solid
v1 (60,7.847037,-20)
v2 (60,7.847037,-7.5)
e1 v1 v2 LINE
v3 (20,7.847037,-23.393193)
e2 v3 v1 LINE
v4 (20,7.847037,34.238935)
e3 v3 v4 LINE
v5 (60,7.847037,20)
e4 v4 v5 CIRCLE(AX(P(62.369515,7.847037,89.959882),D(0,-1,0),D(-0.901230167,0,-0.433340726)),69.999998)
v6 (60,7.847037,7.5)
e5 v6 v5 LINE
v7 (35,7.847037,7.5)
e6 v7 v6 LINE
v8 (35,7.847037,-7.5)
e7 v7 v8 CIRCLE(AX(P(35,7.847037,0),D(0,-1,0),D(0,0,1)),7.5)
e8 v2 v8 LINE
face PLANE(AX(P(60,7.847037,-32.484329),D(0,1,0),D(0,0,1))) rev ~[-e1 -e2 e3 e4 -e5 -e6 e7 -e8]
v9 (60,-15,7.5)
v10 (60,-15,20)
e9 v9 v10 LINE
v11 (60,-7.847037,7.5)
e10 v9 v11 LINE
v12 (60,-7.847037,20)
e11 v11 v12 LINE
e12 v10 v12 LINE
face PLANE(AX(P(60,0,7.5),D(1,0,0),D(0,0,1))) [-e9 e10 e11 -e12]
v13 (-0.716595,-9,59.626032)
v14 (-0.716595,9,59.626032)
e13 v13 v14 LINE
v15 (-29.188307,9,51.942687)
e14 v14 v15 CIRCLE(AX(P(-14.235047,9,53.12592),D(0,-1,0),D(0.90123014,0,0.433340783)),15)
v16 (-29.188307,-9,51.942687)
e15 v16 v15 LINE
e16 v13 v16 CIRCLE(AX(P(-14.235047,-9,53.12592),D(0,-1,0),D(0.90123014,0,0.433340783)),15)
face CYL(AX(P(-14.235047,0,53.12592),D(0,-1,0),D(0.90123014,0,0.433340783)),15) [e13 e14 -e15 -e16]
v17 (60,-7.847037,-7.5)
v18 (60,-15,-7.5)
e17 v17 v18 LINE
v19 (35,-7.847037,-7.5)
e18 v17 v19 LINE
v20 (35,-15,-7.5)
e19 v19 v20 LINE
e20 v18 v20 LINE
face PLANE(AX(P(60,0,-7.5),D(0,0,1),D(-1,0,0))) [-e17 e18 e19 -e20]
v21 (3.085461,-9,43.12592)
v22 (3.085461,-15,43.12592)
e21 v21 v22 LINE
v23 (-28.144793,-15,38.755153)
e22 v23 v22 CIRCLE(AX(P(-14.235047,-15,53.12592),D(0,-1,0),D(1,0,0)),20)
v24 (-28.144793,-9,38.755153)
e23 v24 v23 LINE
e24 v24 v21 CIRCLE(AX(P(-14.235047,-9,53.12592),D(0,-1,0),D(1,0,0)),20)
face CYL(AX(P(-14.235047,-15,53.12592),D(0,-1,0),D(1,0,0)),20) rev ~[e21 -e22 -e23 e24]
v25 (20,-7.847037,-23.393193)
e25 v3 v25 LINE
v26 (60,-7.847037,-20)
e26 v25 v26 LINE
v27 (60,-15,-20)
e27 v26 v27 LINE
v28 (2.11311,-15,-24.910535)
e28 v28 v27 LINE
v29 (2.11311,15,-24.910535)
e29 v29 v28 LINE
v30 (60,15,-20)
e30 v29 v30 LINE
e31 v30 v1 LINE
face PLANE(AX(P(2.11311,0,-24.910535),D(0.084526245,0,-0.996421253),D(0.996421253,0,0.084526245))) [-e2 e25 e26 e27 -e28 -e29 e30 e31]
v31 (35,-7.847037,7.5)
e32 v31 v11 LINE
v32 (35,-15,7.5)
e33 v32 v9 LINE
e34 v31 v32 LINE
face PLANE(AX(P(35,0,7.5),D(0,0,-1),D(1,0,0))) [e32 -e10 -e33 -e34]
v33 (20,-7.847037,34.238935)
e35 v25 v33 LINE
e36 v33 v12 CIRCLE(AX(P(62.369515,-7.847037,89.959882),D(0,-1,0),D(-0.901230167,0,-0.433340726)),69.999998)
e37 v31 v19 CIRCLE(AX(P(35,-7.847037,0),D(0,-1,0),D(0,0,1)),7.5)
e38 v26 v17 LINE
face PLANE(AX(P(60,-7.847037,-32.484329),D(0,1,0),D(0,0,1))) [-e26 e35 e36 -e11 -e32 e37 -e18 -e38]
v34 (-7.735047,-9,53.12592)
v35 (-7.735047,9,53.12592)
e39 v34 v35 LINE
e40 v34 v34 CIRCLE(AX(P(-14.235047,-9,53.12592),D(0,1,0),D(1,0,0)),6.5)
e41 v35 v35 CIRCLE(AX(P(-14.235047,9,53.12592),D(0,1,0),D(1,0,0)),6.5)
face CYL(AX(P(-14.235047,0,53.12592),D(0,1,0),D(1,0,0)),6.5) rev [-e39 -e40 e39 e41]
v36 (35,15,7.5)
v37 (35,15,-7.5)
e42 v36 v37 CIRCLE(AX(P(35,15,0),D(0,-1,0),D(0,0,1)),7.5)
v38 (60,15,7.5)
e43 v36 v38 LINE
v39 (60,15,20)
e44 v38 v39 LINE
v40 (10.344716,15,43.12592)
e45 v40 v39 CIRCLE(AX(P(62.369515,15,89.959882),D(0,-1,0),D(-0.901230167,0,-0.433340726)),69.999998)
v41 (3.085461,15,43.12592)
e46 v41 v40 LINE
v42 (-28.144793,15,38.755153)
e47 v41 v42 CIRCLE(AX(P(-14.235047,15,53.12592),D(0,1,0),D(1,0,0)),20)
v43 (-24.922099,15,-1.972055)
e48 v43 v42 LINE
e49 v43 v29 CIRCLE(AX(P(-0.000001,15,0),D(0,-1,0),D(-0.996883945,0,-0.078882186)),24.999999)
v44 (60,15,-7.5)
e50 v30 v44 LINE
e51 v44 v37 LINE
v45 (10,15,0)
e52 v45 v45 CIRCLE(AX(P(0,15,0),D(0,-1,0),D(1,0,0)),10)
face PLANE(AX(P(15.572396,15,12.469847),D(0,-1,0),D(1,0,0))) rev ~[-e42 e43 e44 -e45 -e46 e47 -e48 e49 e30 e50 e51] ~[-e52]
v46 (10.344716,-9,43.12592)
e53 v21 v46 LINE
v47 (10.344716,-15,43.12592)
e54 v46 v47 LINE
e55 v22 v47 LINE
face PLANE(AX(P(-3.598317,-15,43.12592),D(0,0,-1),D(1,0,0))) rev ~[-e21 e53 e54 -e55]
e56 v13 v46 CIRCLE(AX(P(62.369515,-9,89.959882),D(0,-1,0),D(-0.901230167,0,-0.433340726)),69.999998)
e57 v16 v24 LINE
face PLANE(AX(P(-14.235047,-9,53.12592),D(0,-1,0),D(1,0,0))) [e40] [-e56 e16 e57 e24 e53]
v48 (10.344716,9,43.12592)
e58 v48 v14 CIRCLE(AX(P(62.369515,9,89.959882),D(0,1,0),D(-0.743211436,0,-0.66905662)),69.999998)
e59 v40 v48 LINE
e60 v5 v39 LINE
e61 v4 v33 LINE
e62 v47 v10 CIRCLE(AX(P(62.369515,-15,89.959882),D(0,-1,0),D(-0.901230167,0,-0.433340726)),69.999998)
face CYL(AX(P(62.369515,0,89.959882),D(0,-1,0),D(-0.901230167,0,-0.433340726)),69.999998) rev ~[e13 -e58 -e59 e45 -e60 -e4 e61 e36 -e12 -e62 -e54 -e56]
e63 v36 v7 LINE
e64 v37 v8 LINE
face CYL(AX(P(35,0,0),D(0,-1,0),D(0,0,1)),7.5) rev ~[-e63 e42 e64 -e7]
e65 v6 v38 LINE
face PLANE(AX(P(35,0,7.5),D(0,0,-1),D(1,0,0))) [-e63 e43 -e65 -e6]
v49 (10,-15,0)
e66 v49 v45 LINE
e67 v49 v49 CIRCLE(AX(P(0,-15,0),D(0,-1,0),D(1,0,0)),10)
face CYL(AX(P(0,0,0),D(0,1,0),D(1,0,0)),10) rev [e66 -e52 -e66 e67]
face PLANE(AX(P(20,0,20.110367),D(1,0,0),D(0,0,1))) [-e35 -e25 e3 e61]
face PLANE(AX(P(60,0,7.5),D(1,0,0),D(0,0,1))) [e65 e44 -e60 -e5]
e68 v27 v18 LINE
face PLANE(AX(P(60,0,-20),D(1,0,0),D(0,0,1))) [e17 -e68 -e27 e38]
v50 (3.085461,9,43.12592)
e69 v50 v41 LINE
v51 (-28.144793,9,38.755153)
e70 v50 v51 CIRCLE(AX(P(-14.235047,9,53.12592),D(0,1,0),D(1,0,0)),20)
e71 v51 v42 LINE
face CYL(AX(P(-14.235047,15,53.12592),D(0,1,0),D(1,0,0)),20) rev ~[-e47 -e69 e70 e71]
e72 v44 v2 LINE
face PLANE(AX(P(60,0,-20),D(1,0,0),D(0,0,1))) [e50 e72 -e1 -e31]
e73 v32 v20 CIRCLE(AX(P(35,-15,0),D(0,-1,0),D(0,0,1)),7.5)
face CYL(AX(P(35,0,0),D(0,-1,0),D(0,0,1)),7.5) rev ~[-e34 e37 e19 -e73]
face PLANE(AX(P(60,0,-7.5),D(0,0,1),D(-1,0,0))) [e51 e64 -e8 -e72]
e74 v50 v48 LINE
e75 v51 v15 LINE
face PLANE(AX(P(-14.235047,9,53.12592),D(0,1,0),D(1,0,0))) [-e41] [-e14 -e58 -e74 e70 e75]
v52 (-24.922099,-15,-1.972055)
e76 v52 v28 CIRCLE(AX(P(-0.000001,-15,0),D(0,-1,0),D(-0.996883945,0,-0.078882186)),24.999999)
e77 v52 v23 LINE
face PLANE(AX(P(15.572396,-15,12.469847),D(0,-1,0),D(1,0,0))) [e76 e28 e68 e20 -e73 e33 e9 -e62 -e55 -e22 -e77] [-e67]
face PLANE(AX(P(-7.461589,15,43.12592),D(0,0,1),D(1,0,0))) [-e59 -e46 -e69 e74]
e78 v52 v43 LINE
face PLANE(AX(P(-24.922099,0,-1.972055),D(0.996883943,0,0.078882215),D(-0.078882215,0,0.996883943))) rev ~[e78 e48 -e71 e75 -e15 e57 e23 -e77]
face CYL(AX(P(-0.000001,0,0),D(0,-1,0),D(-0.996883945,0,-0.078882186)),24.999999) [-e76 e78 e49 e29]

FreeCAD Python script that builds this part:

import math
import FreeCAD as App
import Part
import Sketcher

V = App.Vector

doc = App.newDocument("Part")
params = doc.addObject("Spreadsheet::Sheet", "Params")
for row, (alias, value) in enumerate([
    ("sketch1_diameter", "20 mm"),
    ("sketch1_diameter2", "13 mm"),
    ("sketch1_radius", "24.999999 mm"),
    ("sketch1_radius2", "15 mm"),
    ("sketch1_radius3", "7.5 mm"),
    ("pad1_length", "30 mm"),
    ("sketch2_diameter", "40 mm"),
    ("pocket1_length", "6 mm"),
    ("sketch3_diameter", "40 mm"),
    ("pocket2_length", "6 mm"),
    ("pocket3_length", "40 mm"),
    ("pocket4_length", "6 mm"),
    ("pocket5_length", "6 mm"),
], start=1):
    params.set(f"A{row}", alias)
    params.set(f"B{row}", "=" + value)
    params.setAlias(f"B{row}", alias)

body = doc.addObject("PartDesign::Body", "Body")

sketch1 = body.newObject("Sketcher::SketchObject", "Sketch")
sketch1.AttachmentSupport = (doc.getObject("XZ_Plane"), [""])
sketch1.MapMode = "FlatFace"
sketch1.addGeometry([
    Part.ArcOfCircle(Part.Circle(V(-0.000001, 0, 0), V(0, 0, 1), 24.999999), math.radians(-175.475683), math.radians(-85.151321)),
    Part.LineSegment(V(2.11311, -24.910535, 0), V(60, -20, 0)),
    Part.LineSegment(V(60, -20, 0), V(60, -7.5, 0)),
    Part.LineSegment(V(60, -7.5, 0), V(35, -7.5, 0)),
    Part.ArcOfCircle(Part.Circle(V(35, 0, 0), V(0, 0, 1), 7.5), math.radians(90), math.radians(270)),
    Part.LineSegment(V(35, 7.5, 0), V(60, 7.5, 0)),
    Part.LineSegment(V(60, 7.5, 0), V(60, 20, 0)),
    Part.ArcOfCircle(Part.Circle(V(62.369515, 89.959882, 0), V(0, 0, 1), 69.999998), math.radians(-154.320241), math.radians(-91.939845)),
    Part.ArcOfCircle(Part.Circle(V(-14.235047, 53.12592, 0), V(0, 0, 1), 15), math.radians(25.679762), math.radians(184.524318)),
    Part.LineSegment(V(-29.188307, 51.942687, 0), V(-24.922099, -1.972055, 0)),
    Part.Circle(V(0, 0, 0), V(0, 0, 1), 10),
    Part.Circle(V(-14.235047, 53.12592, 0), V(0, 0, 1), 6.5),
], False)
sketch1.addConstraint([
    Sketcher.Constraint("Coincident", 0, 2, 1, 1),
    Sketcher.Constraint("Coincident", 1, 2, 2, 1),
    Sketcher.Constraint("Coincident", 2, 2, 3, 1),
    Sketcher.Constraint("Coincident", 3, 2, 4, 2),
    Sketcher.Constraint("Coincident", 4, 1, 5, 1),
    Sketcher.Constraint("Coincident", 5, 2, 6, 1),
    Sketcher.Constraint("Coincident", 6, 2, 7, 2),
    Sketcher.Constraint("Coincident", 7, 1, 8, 1),
    Sketcher.Constraint("Coincident", 8, 2, 9, 1),
    Sketcher.Constraint("Coincident", 9, 2, 0, 1),
    Sketcher.Constraint("Vertical", 2),
    Sketcher.Constraint("Horizontal", 3),
    Sketcher.Constraint("Horizontal", 5),
    Sketcher.Constraint("Vertical", 6),
    Sketcher.Constraint("Coincident", 0, 3, -1, 1),
    Sketcher.Constraint("Coincident", 10, 3, -1, 1),
    Sketcher.Constraint("Coincident", 11, 3, 8, 3),
    Sketcher.Constraint("PointOnObject", 4, 3, -1),
    Sketcher.Constraint("Diameter", 10, 20.0),
    Sketcher.Constraint("Diameter", 11, 13.0),
    Sketcher.Constraint("Radius", 0, 24.999999),
    Sketcher.Constraint("Radius", 8, 15.0),
    Sketcher.Constraint("Radius", 4, 7.5),
    Sketcher.Constraint("DistanceX", 3, 2, 3, 1, 25.0),
    Sketcher.Constraint("DistanceX", 5, 1, 5, 2, 25.0),
    Sketcher.Constraint("DistanceY", 2, 1, 2, 2, 12.5),
    Sketcher.Constraint("DistanceY", 6, 1, 6, 2, 12.5),
    Sketcher.Constraint("DistanceX", -1, 1, 4, 3, 35.0),
    Sketcher.Constraint("DistanceX", -1, 1, 1, 2, 60.0),
    Sketcher.Constraint("DistanceX", -1, 1, 4, 1, 35.0),
    Sketcher.Constraint("Radius", 7, 69.999998),
    Sketcher.Constraint("DistanceX", 9, 2, -1, 1, 24.922099),
    Sketcher.Constraint("Distance", 9, 54.083269),
    Sketcher.Constraint("DistanceY", -1, 1, 7, 3, 89.959882),
    Sketcher.Constraint("DistanceY", -1, 1, 8, 3, 53.12592),
    Sketcher.Constraint("DistanceX", -1, 1, 0, 2, 2.11311),
    Sketcher.Constraint("DistanceY", 8, 3, 7, 1, 6.500112),
])
sketch1.setExpression("Constraints[18]", "Params.sketch1_diameter")
sketch1.setExpression("Constraints[19]", "Params.sketch1_diameter2")
sketch1.setExpression("Constraints[20]", "Params.sketch1_radius")
sketch1.setExpression("Constraints[21]", "Params.sketch1_radius2")
sketch1.setExpression("Constraints[22]", "Params.sketch1_radius3")
pad1 = body.newObject("PartDesign::Pad", "Pad")
pad1.Profile = sketch1
pad1.setExpression("Length", "Params.pad1_length")
pad1.Midplane = True

sketch2 = body.newObject("Sketcher::SketchObject", "Sketch001")
sketch2.AttachmentSupport = (doc.getObject("XZ_Plane"), [""])
sketch2.MapMode = "FlatFace"
sketch2.AttachmentOffset = App.Placement(V(0, 0, 15), App.Rotation())
sketch2.addGeometry(Part.Circle(V(-14, 53, 0), V(0, 0, 1), 20), False)
sketch2.addConstraint([
    Sketcher.Constraint("Diameter", 0, 40.0),
    Sketcher.Constraint("DistanceY", -1, 1, 0, 3, 53.12592),
    Sketcher.Constraint("DistanceX", 0, 3, -1, 1, 14.235047),
])
sketch2.setExpression("Constraints[0]", "Params.sketch2_diameter")
pocket1 = body.newObject("PartDesign::Pocket", "Pocket")
pocket1.Profile = sketch2
pocket1.setExpression("Length", "Params.pocket1_length")

sketch3 = body.newObject("Sketcher::SketchObject", "Sketch002")
sketch3.AttachmentSupport = (doc.getObject("XZ_Plane"), [""])
sketch3.MapMode = "FlatFace"
sketch3.AttachmentOffset = App.Placement(V(0, 0, -15), App.Rotation())
sketch3.addGeometry(Part.Circle(V(-14, 53, 0), V(0, 0, 1), 20), False)
sketch3.addConstraint([
    Sketcher.Constraint("Diameter", 0, 40.0),
    Sketcher.Constraint("DistanceY", -1, 1, 0, 3, 53.12592),
    Sketcher.Constraint("DistanceX", 0, 3, -1, 1, 14.235047),
])
sketch3.setExpression("Constraints[0]", "Params.sketch3_diameter")
pocket2 = body.newObject("PartDesign::Pocket", "Pocket001")
pocket2.Profile = sketch3
pocket2.setExpression("Length", "Params.pocket2_length")
pocket2.Reversed = True

sketch4 = body.newObject("Sketcher::SketchObject", "Sketch003")
sketch4.AttachmentSupport = (doc.getObject("YZ_Plane"), [""])
sketch4.MapMode = "FlatFace"
sketch4.AttachmentOffset = App.Placement(V(0, 0, 60), App.Rotation())
sketch4.addGeometry([
    Part.LineSegment(V(-8, -32, 0), V(8, -32, 0)),
    Part.LineSegment(V(8, -32, 0), V(8, 73, 0)),
    Part.LineSegment(V(8, 73, 0), V(-8, 73, 0)),
    Part.LineSegment(V(-8, 73, 0), V(-8, -32, 0)),
], False)
sketch4.addConstraint([
    Sketcher.Constraint("Coincident", 0, 2, 1, 1),
    Sketcher.Constraint("Coincident", 1, 2, 2, 1),
    Sketcher.Constraint("Coincident", 2, 2, 3, 1),
    Sketcher.Constraint("Coincident", 3, 2, 0, 1),
    Sketcher.Constraint("Horizontal", 0),
    Sketcher.Constraint("Vertical", 1),
    Sketcher.Constraint("Horizontal", 2),
    Sketcher.Constraint("Vertical", 3),
    Sketcher.Constraint("DistanceY", 1, 1, 1, 2, 105.189392),
    Sketcher.Constraint("DistanceX", 0, 1, 0, 2, 15.694074),
    Sketcher.Constraint("DistanceY", 0, 2, -1, 1, 32.484329),
    Sketcher.Constraint("DistanceX", -1, 1, 0, 2, 7.847037),
])
pocket3 = body.newObject("PartDesign::Pocket", "Pocket002")
pocket3.Profile = sketch4
pocket3.setExpression("Length", "Params.pocket3_length")

sketch5 = body.newObject("Sketcher::SketchObject", "Sketch004")
sketch5.AttachmentSupport = (doc.getObject("XZ_Plane"), [""])
sketch5.MapMode = "FlatFace"
sketch5.AttachmentOffset = App.Placement(V(0, 0, 15), App.Rotation())
sketch5.addGeometry([
    Part.LineSegment(V(-4, 51, 0), V(-4, 43, 0)),
    Part.LineSegment(V(-4, 43, 0), V(15, 43, 0)),
    Part.LineSegment(V(15, 43, 0), V(15, 51, 0)),
    Part.LineSegment(V(15, 51, 0), V(-4, 51, 0)),
], False)
sketch5.addConstraint([
    Sketcher.Constraint("Coincident", 0, 2, 1, 1),
    Sketcher.Constraint("Coincident", 1, 2, 2, 1),
    Sketcher.Constraint("Coincident", 2, 2, 3, 1),
    Sketcher.Constraint("Coincident", 3, 2, 0, 1),
    Sketcher.Constraint("Vertical", 0),
    Sketcher.Constraint("Horizontal", 1),
    Sketcher.Constraint("Vertical", 2),
    Sketcher.Constraint("Horizontal", 3),
    Sketcher.Constraint("DistanceX", 1, 1, 1, 2, 18.945393),
    Sketcher.Constraint("DistanceY", 0, 2, 0, 1, 8.112743),
    Sketcher.Constraint("DistanceY", -1, 1, 0, 2, 43.12592),
    Sketcher.Constraint("DistanceX", 0, 2, -1, 1, 3.598317),
])
pocket4 = body.newObject("PartDesign::Pocket", "Pocket003")
pocket4.Profile = sketch5
pocket4.setExpression("Length", "Params.pocket4_length")

sketch6 = body.newObject("Sketcher::SketchObject", "Sketch005")
sketch6.AttachmentSupport = (doc.getObject("XZ_Plane"), [""])
sketch6.MapMode = "FlatFace"
sketch6.AttachmentOffset = App.Placement(V(0, 0, -15), App.Rotation())
sketch6.addGeometry([
    Part.LineSegment(V(-7, 43, 0), V(-7, 53, 0)),
    Part.LineSegment(V(-7, 53, 0), V(27, 53, 0)),
    Part.LineSegment(V(27, 53, 0), V(27, 43, 0)),
    Part.LineSegment(V(27, 43, 0), V(-7, 43, 0)),
], False)
sketch6.addConstraint([
    Sketcher.Constraint("Coincident", 0, 2, 1, 1),
    Sketcher.Constraint("Coincident", 1, 2, 2, 1),
    Sketcher.Constraint("Coincident", 2, 2, 3, 1),
    Sketcher.Constraint("Coincident", 3, 2, 0, 1),
    Sketcher.Constraint("Vertical", 0),
    Sketcher.Constraint("Horizontal", 1),
    Sketcher.Constraint("Vertical", 2),
    Sketcher.Constraint("Horizontal", 3),
    Sketcher.Constraint("DistanceX", 1, 1, 1, 2, 34.537269),
    Sketcher.Constraint("DistanceY", 0, 1, 0, 2, 10.152644),
    Sketcher.Constraint("DistanceX", 0, 2, -1, 1, 7.461589),
    Sketcher.Constraint("DistanceY", -1, 1, 2, 2, 43.12592),
])
pocket5 = body.newObject("PartDesign::Pocket", "Pocket004")
pocket5.Profile = sketch6
pocket5.setExpression("Length", "Params.pocket5_length")
pocket5.Reversed = True

doc.recompute()
